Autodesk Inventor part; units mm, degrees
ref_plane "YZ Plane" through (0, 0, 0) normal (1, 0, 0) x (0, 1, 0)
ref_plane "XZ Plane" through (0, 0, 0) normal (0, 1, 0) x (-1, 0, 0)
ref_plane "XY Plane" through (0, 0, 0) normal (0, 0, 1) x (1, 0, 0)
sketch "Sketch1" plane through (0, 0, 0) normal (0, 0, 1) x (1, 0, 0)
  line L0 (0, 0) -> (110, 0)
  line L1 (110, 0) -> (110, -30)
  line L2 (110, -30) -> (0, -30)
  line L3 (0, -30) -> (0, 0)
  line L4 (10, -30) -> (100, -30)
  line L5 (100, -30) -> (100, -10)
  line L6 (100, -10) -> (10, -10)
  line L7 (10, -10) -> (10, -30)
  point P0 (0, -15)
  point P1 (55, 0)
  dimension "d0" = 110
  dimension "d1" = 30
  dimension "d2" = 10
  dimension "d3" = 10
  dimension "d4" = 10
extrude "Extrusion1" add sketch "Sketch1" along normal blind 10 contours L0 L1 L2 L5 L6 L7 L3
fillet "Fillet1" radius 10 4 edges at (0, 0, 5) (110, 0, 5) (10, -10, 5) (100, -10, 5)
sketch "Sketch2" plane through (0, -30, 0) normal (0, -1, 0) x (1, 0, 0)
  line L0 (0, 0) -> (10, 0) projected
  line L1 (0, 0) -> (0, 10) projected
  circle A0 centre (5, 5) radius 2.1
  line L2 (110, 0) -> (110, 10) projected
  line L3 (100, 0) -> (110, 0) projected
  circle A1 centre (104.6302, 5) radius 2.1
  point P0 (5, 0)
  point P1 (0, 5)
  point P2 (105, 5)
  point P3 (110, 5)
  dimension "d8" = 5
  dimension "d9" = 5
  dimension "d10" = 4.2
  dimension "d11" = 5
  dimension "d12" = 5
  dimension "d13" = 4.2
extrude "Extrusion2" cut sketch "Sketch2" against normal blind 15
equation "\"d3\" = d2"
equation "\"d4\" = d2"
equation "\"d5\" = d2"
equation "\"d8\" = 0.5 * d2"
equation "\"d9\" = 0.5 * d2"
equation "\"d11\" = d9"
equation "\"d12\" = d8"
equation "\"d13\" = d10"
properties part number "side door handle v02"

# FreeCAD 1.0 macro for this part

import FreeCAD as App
import Part
import Sketcher
from FreeCAD import Vector


def edges_at(feature, points):
    """Names of the edges that pass closest to the given points."""
    edges = feature.Shape.Edges
    near = lambda p: min(range(len(edges)), key=lambda i: edges[i].distToShape(Part.Vertex(*p))[0])
    return sorted({f"Edge{near(p) + 1}" for p in points})

doc = App.newDocument("Part")
params = doc.addObject("Spreadsheet::Sheet", "Params")
for row, (alias, value) in enumerate([
    ("sketch1_width", "110 mm"),
    ("sketch1_width2", "10 mm"),
    ("sketch1_height", "30 mm"),
    ("pad1_length", "10 mm"),
    ("fillet_radius", "10 mm"),
    ("sketch2_diameter", "4.2 mm"),
    ("pocket1_length", "15 mm"),
], start=1):
    params.set(f"A{row}", alias)
    params.set(f"B{row}", "=" + value)
    params.setAlias(f"B{row}", alias)

body = doc.addObject("PartDesign::Body", "Body")

sketch1 = body.newObject("Sketcher::SketchObject", "Sketch")
sketch1.AttachmentSupport = (doc.getObject("XY_Plane"), [""])
sketch1.MapMode = "FlatFace"
sketch1.addGeometry([
    Part.LineSegment(Vector(110, 0, 0), Vector(0, 0, 0)),
    Part.LineSegment(Vector(0, 0, 0), Vector(0, -30, 0)),
    Part.LineSegment(Vector(0, -30, 0), Vector(10, -30, 0)),
    Part.LineSegment(Vector(10, -30, 0), Vector(10, -10, 0)),
    Part.LineSegment(Vector(10, -10, 0), Vector(100, -10, 0)),
    Part.LineSegment(Vector(100, -10, 0), Vector(100, -30, 0)),
    Part.LineSegment(Vector(100, -30, 0), Vector(110, -30, 0)),
    Part.LineSegment(Vector(110, -30, 0), Vector(110, 0, 0)),
], False)
sketch1.addConstraint([
    Sketcher.Constraint("Coincident", 0, 2, 1, 1),
    Sketcher.Constraint("Coincident", 1, 2, 2, 1),
    Sketcher.Constraint("Coincident", 2, 2, 3, 1),
    Sketcher.Constraint("Coincident", 3, 2, 4, 1),
    Sketcher.Constraint("Coincident", 4, 2, 5, 1),
    Sketcher.Constraint("Coincident", 5, 2, 6, 1),
    Sketcher.Constraint("Coincident", 6, 2, 7, 1),
    Sketcher.Constraint("Coincident", 7, 2, 0, 1),
    Sketcher.Constraint("Horizontal", 0),
    Sketcher.Constraint("Vertical", 1),
    Sketcher.Constraint("Horizontal", 2),
    Sketcher.Constraint("Vertical", 3),
    Sketcher.Constraint("Horizontal", 4),
    Sketcher.Constraint("Vertical", 5),
    Sketcher.Constraint("Horizontal", 6),
    Sketcher.Constraint("Vertical", 7),
    Sketcher.Constraint("Coincident", 0, 2, -1, 1),
    Sketcher.Constraint("Horizontal", 2, 2, 5, 2),
    Sketcher.Constraint("Equal", 2, 6),
    Sketcher.Constraint("DistanceX", 0, 2, 0, 1, 110.0),
    Sketcher.Constraint("DistanceX", 2, 1, 2, 2, 10.0),
    Sketcher.Constraint("DistanceY", 1, 2, 1, 1, 30.0),
    Sketcher.Constraint("DistanceY", 3, 2, -1, 1, 10.0),
])
sketch1.setExpression("Constraints[19]", "Params.sketch1_width")
sketch1.setExpression("Constraints[20]", "Params.sketch1_width2")
sketch1.setExpression("Constraints[21]", "Params.sketch1_height")
pad1 = body.newObject("PartDesign::Pad", "Pad")
pad1.Profile = sketch1
pad1.setExpression("Length", "Params.pad1_length")
doc.recompute()

fillet = body.newObject("PartDesign::Fillet", "Fillet")
fillet.Base = (pad1, edges_at(pad1, [
    (0, 0, 5),
    (110, 0, 5),
    (10, -10, 5),
    (100, -10, 5),
]))
fillet.setExpression("Radius", "Params.fillet_radius")

sketch2 = body.newObject("Sketcher::SketchObject", "Sketch001")
sketch2.AttachmentSupport = (doc.getObject("XZ_Plane"), [""])
sketch2.MapMode = "FlatFace"
sketch2.AttachmentOffset = App.Placement(Vector(0, 0, 30), App.Rotation())
sketch2.addGeometry([
    Part.Circle(Vector(5, 5, 0), Vector(0, 0, 1), 2.1),
    Part.Circle(Vector(104.6, 5, 0), Vector(0, 0, 1), 2.1),
], False)
sketch2.addConstraint([
    Sketcher.Constraint("Equal", 0, 1),
    Sketcher.Constraint("Horizontal", 0, 3, 1, 3),
    Sketcher.Constraint("Diameter", 0, 4.2),
    Sketcher.Constraint("DistanceX", -1, 1, 0, 3, 5.0),
    Sketcher.Constraint("DistanceY", -1, 1, 0, 3, 5.0),
    Sketcher.Constraint("DistanceX", -1, 1, 1, 3, 104.6302),
])
sketch2.setExpression("Constraints[2]", "Params.sketch2_diameter")
pocket1 = body.newObject("PartDesign::Pocket", "Pocket")
pocket1.Profile = sketch2
pocket1.setExpression("Length", "Params.pocket1_length")

doc.recompute()
